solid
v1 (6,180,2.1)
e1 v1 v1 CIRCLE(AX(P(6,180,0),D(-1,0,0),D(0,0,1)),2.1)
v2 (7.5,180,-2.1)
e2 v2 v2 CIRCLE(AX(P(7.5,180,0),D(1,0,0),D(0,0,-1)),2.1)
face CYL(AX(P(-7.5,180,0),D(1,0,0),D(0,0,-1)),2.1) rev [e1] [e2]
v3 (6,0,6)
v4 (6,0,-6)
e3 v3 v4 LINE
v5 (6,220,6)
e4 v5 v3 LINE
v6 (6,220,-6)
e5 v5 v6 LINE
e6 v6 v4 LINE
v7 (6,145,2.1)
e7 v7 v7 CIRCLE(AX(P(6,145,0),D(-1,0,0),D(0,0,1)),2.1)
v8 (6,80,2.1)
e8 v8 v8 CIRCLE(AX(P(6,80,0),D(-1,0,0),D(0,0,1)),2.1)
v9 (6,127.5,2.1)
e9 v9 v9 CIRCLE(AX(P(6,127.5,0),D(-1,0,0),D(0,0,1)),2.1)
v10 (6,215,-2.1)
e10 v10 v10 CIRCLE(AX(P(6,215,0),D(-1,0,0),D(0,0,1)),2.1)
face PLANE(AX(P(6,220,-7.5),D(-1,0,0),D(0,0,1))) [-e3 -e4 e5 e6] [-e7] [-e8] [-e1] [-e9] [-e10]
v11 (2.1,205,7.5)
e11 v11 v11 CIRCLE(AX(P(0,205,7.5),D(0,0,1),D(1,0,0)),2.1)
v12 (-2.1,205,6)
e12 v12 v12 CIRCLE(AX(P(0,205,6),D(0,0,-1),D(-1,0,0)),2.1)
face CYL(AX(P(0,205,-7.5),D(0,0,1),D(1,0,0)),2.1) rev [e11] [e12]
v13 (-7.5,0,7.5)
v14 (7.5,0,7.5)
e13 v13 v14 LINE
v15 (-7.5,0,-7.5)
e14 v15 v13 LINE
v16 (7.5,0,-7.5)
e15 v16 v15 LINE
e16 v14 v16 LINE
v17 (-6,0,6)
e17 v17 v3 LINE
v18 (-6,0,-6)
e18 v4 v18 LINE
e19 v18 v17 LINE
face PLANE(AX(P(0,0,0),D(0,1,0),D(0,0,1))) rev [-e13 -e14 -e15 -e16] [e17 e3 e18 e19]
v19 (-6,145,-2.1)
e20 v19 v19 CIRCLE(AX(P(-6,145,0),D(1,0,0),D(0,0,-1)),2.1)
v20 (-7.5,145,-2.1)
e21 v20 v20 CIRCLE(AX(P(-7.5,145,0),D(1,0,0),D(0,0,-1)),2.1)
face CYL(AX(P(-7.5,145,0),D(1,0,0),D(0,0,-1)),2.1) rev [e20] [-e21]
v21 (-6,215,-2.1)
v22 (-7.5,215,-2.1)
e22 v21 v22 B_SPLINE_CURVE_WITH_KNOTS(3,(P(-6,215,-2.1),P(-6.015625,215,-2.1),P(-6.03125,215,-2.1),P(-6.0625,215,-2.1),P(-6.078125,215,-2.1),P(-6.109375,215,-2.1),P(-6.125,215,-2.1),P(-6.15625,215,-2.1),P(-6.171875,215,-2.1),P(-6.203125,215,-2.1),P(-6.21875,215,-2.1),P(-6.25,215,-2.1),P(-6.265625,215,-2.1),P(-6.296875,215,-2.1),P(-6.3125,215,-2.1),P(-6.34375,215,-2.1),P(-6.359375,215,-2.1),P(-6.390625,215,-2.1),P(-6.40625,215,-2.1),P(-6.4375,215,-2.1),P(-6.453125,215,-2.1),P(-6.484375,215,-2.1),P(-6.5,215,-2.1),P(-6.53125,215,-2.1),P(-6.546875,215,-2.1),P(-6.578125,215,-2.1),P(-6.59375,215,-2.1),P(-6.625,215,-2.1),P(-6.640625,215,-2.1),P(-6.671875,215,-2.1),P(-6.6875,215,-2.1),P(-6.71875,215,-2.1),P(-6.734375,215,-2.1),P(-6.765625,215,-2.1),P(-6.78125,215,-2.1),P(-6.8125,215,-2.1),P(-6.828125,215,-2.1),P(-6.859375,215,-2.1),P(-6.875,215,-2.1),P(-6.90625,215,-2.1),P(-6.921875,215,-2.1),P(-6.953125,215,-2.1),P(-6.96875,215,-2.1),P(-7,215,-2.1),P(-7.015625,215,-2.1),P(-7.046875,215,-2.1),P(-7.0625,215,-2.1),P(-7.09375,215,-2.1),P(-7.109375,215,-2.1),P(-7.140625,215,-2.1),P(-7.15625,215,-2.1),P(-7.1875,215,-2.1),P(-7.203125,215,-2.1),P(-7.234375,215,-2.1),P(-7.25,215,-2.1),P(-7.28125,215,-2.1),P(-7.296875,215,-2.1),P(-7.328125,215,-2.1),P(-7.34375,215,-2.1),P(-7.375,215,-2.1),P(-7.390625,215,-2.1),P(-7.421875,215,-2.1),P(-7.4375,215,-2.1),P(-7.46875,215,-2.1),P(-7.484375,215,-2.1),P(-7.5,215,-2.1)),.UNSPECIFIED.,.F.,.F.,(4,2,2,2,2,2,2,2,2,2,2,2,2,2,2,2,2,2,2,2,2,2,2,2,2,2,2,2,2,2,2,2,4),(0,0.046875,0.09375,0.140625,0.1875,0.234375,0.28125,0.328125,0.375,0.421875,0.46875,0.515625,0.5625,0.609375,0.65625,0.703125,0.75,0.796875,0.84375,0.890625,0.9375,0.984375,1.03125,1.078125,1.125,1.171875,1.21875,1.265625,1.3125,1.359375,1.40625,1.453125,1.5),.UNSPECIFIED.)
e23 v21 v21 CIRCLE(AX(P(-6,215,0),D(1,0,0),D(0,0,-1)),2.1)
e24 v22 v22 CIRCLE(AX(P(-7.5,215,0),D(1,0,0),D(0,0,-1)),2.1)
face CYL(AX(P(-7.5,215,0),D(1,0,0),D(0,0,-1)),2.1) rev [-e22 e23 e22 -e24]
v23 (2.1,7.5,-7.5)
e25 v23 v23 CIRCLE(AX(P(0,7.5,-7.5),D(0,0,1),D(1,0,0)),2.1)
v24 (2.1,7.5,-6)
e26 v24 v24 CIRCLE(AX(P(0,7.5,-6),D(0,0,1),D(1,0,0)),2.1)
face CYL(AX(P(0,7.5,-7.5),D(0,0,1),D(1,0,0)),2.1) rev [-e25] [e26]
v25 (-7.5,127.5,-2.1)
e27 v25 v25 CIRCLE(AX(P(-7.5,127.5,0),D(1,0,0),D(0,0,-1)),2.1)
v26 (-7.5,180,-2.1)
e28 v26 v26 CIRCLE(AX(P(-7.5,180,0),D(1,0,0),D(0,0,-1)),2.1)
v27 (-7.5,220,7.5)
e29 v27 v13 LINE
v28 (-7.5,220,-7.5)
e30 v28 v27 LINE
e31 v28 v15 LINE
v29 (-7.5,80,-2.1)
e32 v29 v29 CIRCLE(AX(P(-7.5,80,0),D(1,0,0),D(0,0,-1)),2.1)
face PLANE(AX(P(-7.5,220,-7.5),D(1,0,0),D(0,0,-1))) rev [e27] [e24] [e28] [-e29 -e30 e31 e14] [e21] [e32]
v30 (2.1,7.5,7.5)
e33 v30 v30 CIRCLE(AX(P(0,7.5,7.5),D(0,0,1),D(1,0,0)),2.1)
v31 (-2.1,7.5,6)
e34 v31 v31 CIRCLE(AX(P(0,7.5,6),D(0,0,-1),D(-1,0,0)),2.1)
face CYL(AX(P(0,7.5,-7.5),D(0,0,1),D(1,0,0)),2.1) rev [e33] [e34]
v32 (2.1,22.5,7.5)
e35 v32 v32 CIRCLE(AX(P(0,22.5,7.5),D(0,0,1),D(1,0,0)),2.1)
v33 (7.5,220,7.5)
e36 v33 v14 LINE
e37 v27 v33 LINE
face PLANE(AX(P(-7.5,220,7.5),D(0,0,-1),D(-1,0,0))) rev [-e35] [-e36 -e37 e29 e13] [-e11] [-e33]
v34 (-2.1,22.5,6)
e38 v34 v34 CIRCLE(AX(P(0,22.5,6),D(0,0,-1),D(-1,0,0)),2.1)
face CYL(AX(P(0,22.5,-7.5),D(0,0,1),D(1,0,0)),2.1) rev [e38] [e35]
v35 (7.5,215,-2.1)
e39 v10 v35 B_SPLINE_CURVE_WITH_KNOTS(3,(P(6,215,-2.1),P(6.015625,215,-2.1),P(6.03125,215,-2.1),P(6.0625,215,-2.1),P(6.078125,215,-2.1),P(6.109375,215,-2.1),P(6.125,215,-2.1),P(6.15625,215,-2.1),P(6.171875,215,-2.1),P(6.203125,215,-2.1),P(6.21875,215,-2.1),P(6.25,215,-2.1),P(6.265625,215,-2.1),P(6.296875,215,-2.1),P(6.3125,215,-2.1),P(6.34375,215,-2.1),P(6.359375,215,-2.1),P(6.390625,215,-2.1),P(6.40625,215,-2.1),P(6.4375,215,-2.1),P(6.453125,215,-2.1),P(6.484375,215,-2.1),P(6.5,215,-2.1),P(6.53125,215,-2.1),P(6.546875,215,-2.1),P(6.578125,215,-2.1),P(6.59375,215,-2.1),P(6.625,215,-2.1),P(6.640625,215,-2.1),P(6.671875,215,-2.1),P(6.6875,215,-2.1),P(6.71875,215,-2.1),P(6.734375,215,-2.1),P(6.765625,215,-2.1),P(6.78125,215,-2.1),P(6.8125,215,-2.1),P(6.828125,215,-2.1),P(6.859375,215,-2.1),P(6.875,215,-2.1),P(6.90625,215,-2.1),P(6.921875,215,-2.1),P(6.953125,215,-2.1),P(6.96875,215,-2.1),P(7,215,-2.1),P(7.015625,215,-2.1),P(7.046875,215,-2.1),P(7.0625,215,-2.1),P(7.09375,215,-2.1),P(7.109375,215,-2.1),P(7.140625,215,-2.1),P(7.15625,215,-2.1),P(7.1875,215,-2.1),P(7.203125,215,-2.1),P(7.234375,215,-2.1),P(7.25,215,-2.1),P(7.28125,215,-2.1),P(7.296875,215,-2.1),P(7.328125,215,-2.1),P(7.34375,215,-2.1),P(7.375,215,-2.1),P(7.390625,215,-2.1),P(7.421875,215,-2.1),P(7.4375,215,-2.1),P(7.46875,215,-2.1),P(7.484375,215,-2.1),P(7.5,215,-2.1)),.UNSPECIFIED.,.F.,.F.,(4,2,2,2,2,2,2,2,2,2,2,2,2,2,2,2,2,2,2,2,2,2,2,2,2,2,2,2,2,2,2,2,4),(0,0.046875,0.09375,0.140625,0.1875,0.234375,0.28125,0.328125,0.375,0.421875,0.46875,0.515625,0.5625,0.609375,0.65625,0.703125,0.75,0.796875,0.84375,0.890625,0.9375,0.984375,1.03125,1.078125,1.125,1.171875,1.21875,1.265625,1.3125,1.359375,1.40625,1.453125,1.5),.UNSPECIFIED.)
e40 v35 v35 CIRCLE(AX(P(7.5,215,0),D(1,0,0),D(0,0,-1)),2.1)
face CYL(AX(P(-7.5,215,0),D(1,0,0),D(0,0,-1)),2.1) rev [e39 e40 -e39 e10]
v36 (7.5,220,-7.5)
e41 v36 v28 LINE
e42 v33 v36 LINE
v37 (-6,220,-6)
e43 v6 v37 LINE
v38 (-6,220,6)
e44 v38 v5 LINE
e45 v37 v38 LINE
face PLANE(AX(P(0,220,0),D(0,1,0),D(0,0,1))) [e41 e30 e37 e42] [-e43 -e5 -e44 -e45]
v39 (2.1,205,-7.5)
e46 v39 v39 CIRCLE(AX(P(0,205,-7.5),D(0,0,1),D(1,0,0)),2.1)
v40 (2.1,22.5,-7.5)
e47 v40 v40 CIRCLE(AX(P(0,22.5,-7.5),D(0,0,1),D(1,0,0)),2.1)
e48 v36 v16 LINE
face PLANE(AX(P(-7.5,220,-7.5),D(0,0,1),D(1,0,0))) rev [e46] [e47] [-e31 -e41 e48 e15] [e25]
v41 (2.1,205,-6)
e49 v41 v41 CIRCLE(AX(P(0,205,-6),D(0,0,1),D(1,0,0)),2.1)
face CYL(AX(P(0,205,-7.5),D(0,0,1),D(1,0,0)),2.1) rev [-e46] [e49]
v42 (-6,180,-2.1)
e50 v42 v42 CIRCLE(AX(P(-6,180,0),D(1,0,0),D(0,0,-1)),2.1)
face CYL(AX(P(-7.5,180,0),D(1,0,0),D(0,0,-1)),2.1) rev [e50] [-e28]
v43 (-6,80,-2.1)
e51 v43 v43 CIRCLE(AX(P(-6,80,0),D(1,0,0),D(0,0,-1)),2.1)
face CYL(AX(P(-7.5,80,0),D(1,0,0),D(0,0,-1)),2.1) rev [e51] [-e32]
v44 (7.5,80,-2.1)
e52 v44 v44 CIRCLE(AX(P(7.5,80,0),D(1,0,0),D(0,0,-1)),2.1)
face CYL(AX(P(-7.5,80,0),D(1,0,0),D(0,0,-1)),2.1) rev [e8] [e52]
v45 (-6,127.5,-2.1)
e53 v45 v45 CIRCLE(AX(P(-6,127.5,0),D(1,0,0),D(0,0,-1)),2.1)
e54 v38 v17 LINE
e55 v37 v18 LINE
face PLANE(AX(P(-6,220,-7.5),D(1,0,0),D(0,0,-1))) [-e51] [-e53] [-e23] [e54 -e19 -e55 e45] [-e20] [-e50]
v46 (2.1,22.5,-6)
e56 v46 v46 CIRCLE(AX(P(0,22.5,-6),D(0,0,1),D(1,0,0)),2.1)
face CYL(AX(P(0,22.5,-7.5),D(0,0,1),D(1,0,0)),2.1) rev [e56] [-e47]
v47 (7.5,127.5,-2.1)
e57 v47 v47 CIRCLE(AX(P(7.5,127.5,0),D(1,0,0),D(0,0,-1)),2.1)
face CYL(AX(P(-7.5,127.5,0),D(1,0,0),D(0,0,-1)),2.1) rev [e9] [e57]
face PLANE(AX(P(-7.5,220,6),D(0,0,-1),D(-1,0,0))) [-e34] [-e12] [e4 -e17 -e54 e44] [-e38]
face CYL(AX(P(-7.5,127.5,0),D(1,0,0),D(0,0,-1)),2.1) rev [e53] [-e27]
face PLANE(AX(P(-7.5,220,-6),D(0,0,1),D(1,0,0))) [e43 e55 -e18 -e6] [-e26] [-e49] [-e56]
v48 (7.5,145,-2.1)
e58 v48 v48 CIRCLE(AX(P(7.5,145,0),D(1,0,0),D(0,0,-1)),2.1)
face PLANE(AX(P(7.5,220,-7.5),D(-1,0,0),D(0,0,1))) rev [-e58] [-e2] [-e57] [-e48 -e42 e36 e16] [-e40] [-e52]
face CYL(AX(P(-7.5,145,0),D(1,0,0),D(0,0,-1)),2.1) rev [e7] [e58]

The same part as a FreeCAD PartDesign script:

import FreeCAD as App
import Part
import Sketcher

V = App.Vector


def add_polygon(sketch, points):
    """Adds a closed chain of lines whose ends are joined by coincident constraints."""
    first, n = sketch.GeometryCount, len(points)
    for a, b in zip(points, points[1:] + points[:1]):
        sketch.addGeometry(Part.LineSegment(App.Vector(*a, 0), App.Vector(*b, 0)), False)
    for i in range(n):
        sketch.addConstraint(Sketcher.Constraint("Coincident", first + i, 2, first + (i + 1) % n, 1))

doc = App.newDocument("Part")
body = doc.addObject("PartDesign::Body", "Body")

# Sketch on XZ plane
sketch1 = doc.addObject("Sketcher::SketchObject", "Sketch")
body.addObject(sketch1)
sketch1.AttachmentSupport = (doc.XZ_Plane, [""])
sketch1.MapMode = "FlatFace"
add_polygon(sketch1, [(-8, -8), (-8, 8), (8, 8), (8, -8)])  # lines 0-3
add_polygon(sketch1, [(6, 6), (-6, 6), (-6, -6), (6, -6)])  # lines 4-7
sketch1.addConstraint(Sketcher.Constraint("Vertical", 0))
sketch1.addConstraint(Sketcher.Constraint("Horizontal", 1))
sketch1.addConstraint(Sketcher.Constraint("Vertical", 2))
sketch1.addConstraint(Sketcher.Constraint("Horizontal", 3))
sketch1.addConstraint(Sketcher.Constraint("Horizontal", 4))
sketch1.addConstraint(Sketcher.Constraint("Vertical", 5))
sketch1.addConstraint(Sketcher.Constraint("Horizontal", 6))
sketch1.addConstraint(Sketcher.Constraint("Vertical", 7))
sketch1.addConstraint(Sketcher.Constraint("Symmetric", 0, 2, 2, 2, -1, 1))
sketch1.addConstraint(Sketcher.Constraint("Symmetric", 4, 2, 6, 2, -1, 1))
sketch1.addConstraint(Sketcher.Constraint("Equal", 3, 0))
sketch1.addConstraint(Sketcher.Constraint("Equal", 6, 5))
sketch1.addConstraint(Sketcher.Constraint("DistanceX", 1, 1, 1, 2, 15.0))
sketch1.addConstraint(Sketcher.Constraint("DistanceX", 4, 2, 4, 1, 12.0))
pad1 = doc.addObject("PartDesign::Pad", "Pad")
body.addObject(pad1)
pad1.Profile = sketch1
pad1.Length = 220
pad1.Reversed = True

# Sketch on YZ plane
sketch2 = doc.addObject("Sketcher::SketchObject", "Sketch001")
body.addObject(sketch2)
sketch2.AttachmentSupport = (doc.YZ_Plane, [""])
sketch2.MapMode = "FlatFace"
sketch2.AttachmentOffset = App.Placement(V(0, 0, 7.5), App.Rotation())
sketch2.addGeometry(Part.Circle(V(215, 0, 0), V(0, 0, 1), 2.1), False)
sketch2.addConstraint(Sketcher.Constraint("PointOnObject", 0, 3, -1))
sketch2.addConstraint(Sketcher.Constraint("Diameter", 0, 4.2))
sketch2.addConstraint(Sketcher.Constraint("DistanceX", -1, 1, 0, 3, 215.0))
pocket1 = doc.addObject("PartDesign::Pocket", "Pocket")
body.addObject(pocket1)
pocket1.Profile = sketch2
pocket1.Type = "ThroughAll"

# Sketch on YZ plane
sketch3 = doc.addObject("Sketcher::SketchObject", "Sketch002")
body.addObject(sketch3)
sketch3.AttachmentSupport = (doc.YZ_Plane, [""])
sketch3.MapMode = "FlatFace"
sketch3.AttachmentOffset = App.Placement(V(0, 0, 7.5), App.Rotation())
sketch3.addGeometry(Part.Circle(V(145, 0, 0), V(0, 0, 1), 2.1), False)
sketch3.addGeometry(Part.Circle(V(180, 0, 0), V(0, 0, 1), 2.1), False)
sketch3.addConstraint(Sketcher.Constraint("Equal", 0, 1))
sketch3.addConstraint(Sketcher.Constraint("PointOnObject", 0, 3, -1))
sketch3.addConstraint(Sketcher.Constraint("PointOnObject", 1, 3, -1))
sketch3.addConstraint(Sketcher.Constraint("Diameter", 0, 4.2))
sketch3.addConstraint(Sketcher.Constraint("DistanceX", -1, 1, 0, 3, 145.0))
sketch3.addConstraint(Sketcher.Constraint("DistanceX", -1, 1, 1, 3, 180.0))
pocket2 = doc.addObject("PartDesign::Pocket", "Pocket001")
body.addObject(pocket2)
pocket2.Profile = sketch3
pocket2.Type = "ThroughAll"

# Sketch on XY plane
sketch4 = doc.addObject("Sketcher::SketchObject", "Sketch003")
body.addObject(sketch4)
sketch4.AttachmentSupport = (doc.XY_Plane, [""])
sketch4.MapMode = "FlatFace"
sketch4.AttachmentOffset = App.Placement(V(0, 0, 7.5), App.Rotation())
sketch4.addGeometry(Part.Circle(V(0, 205, 0), V(0, 0, 1), 2.1), False)
sketch4.addConstraint(Sketcher.Constraint("PointOnObject", 0, 3, -2))
sketch4.addConstraint(Sketcher.Constraint("Diameter", 0, 4.2))
sketch4.addConstraint(Sketcher.Constraint("DistanceY", -1, 1, 0, 3, 205.0))
pocket3 = doc.addObject("PartDesign::Pocket", "Pocket002")
body.addObject(pocket3)
pocket3.Profile = sketch4
pocket3.Type = "ThroughAll"

# Sketch on XY plane
sketch5 = doc.addObject("Sketcher::SketchObject", "Sketch004")
body.addObject(sketch5)
sketch5.AttachmentSupport = (doc.XY_Plane, [""])
sketch5.MapMode = "FlatFace"
sketch5.AttachmentOffset = App.Placement(V(0, 0, 7.5), App.Rotation())
sketch5.addGeometry(Part.Circle(V(0, 22.5, 0), V(0, 0, 1), 2.1), False)
sketch5.addGeometry(Part.Circle(V(0, 7.5, 0), V(0, 0, 1), 2.1), False)
sketch5.addConstraint(Sketcher.Constraint("Equal", 0, 1))
sketch5.addConstraint(Sketcher.Constraint("PointOnObject", 0, 3, -2))
sketch5.addConstraint(Sketcher.Constraint("PointOnObject", 1, 3, -2))
sketch5.addConstraint(Sketcher.Constraint("Diameter", 0, 4.2))
sketch5.addConstraint(Sketcher.Constraint("DistanceY", 1, 3, 0, 3, 15.0))
sketch5.addConstraint(Sketcher.Constraint("DistanceY", -1, 1, 0, 3, 22.5))
pocket4 = doc.addObject("PartDesign::Pocket", "Pocket003")
body.addObject(pocket4)
pocket4.Profile = sketch5
pocket4.Type = "ThroughAll"

# Sketch on YZ plane
sketch6 = doc.addObject("Sketcher::SketchObject", "Sketch005")
body.addObject(sketch6)
sketch6.AttachmentSupport = (doc.YZ_Plane, [""])
sketch6.MapMode = "FlatFace"
sketch6.AttachmentOffset = App.Placement(V(0, 0, 7.5), App.Rotation())
sketch6.addGeometry(Part.Circle(V(80, 0, 0), V(0, 0, 1), 2.1), False)
sketch6.addGeometry(Part.Circle(V(127.5, 0, 0), V(0, 0, 1), 2.1), False)
sketch6.addConstraint(Sketcher.Constraint("Equal", 0, 1))
sketch6.addConstraint(Sketcher.Constraint("PointOnObject", 0, 3, -1))
sketch6.addConstraint(Sketcher.Constraint("PointOnObject", 1, 3, -1))
sketch6.addConstraint(Sketcher.Constraint("Diameter", 0, 4.2))
sketch6.addConstraint(Sketcher.Constraint("DistanceX", -1, 1, 0, 3, 80.0))
sketch6.addConstraint(Sketcher.Constraint("DistanceX", -1, 1, 1, 3, 127.5))
pocket5 = doc.addObject("PartDesign::Pocket", "Pocket004")
body.addObject(pocket5)
pocket5.Profile = sketch6
pocket5.Type = "ThroughAll"

doc.recompute()
